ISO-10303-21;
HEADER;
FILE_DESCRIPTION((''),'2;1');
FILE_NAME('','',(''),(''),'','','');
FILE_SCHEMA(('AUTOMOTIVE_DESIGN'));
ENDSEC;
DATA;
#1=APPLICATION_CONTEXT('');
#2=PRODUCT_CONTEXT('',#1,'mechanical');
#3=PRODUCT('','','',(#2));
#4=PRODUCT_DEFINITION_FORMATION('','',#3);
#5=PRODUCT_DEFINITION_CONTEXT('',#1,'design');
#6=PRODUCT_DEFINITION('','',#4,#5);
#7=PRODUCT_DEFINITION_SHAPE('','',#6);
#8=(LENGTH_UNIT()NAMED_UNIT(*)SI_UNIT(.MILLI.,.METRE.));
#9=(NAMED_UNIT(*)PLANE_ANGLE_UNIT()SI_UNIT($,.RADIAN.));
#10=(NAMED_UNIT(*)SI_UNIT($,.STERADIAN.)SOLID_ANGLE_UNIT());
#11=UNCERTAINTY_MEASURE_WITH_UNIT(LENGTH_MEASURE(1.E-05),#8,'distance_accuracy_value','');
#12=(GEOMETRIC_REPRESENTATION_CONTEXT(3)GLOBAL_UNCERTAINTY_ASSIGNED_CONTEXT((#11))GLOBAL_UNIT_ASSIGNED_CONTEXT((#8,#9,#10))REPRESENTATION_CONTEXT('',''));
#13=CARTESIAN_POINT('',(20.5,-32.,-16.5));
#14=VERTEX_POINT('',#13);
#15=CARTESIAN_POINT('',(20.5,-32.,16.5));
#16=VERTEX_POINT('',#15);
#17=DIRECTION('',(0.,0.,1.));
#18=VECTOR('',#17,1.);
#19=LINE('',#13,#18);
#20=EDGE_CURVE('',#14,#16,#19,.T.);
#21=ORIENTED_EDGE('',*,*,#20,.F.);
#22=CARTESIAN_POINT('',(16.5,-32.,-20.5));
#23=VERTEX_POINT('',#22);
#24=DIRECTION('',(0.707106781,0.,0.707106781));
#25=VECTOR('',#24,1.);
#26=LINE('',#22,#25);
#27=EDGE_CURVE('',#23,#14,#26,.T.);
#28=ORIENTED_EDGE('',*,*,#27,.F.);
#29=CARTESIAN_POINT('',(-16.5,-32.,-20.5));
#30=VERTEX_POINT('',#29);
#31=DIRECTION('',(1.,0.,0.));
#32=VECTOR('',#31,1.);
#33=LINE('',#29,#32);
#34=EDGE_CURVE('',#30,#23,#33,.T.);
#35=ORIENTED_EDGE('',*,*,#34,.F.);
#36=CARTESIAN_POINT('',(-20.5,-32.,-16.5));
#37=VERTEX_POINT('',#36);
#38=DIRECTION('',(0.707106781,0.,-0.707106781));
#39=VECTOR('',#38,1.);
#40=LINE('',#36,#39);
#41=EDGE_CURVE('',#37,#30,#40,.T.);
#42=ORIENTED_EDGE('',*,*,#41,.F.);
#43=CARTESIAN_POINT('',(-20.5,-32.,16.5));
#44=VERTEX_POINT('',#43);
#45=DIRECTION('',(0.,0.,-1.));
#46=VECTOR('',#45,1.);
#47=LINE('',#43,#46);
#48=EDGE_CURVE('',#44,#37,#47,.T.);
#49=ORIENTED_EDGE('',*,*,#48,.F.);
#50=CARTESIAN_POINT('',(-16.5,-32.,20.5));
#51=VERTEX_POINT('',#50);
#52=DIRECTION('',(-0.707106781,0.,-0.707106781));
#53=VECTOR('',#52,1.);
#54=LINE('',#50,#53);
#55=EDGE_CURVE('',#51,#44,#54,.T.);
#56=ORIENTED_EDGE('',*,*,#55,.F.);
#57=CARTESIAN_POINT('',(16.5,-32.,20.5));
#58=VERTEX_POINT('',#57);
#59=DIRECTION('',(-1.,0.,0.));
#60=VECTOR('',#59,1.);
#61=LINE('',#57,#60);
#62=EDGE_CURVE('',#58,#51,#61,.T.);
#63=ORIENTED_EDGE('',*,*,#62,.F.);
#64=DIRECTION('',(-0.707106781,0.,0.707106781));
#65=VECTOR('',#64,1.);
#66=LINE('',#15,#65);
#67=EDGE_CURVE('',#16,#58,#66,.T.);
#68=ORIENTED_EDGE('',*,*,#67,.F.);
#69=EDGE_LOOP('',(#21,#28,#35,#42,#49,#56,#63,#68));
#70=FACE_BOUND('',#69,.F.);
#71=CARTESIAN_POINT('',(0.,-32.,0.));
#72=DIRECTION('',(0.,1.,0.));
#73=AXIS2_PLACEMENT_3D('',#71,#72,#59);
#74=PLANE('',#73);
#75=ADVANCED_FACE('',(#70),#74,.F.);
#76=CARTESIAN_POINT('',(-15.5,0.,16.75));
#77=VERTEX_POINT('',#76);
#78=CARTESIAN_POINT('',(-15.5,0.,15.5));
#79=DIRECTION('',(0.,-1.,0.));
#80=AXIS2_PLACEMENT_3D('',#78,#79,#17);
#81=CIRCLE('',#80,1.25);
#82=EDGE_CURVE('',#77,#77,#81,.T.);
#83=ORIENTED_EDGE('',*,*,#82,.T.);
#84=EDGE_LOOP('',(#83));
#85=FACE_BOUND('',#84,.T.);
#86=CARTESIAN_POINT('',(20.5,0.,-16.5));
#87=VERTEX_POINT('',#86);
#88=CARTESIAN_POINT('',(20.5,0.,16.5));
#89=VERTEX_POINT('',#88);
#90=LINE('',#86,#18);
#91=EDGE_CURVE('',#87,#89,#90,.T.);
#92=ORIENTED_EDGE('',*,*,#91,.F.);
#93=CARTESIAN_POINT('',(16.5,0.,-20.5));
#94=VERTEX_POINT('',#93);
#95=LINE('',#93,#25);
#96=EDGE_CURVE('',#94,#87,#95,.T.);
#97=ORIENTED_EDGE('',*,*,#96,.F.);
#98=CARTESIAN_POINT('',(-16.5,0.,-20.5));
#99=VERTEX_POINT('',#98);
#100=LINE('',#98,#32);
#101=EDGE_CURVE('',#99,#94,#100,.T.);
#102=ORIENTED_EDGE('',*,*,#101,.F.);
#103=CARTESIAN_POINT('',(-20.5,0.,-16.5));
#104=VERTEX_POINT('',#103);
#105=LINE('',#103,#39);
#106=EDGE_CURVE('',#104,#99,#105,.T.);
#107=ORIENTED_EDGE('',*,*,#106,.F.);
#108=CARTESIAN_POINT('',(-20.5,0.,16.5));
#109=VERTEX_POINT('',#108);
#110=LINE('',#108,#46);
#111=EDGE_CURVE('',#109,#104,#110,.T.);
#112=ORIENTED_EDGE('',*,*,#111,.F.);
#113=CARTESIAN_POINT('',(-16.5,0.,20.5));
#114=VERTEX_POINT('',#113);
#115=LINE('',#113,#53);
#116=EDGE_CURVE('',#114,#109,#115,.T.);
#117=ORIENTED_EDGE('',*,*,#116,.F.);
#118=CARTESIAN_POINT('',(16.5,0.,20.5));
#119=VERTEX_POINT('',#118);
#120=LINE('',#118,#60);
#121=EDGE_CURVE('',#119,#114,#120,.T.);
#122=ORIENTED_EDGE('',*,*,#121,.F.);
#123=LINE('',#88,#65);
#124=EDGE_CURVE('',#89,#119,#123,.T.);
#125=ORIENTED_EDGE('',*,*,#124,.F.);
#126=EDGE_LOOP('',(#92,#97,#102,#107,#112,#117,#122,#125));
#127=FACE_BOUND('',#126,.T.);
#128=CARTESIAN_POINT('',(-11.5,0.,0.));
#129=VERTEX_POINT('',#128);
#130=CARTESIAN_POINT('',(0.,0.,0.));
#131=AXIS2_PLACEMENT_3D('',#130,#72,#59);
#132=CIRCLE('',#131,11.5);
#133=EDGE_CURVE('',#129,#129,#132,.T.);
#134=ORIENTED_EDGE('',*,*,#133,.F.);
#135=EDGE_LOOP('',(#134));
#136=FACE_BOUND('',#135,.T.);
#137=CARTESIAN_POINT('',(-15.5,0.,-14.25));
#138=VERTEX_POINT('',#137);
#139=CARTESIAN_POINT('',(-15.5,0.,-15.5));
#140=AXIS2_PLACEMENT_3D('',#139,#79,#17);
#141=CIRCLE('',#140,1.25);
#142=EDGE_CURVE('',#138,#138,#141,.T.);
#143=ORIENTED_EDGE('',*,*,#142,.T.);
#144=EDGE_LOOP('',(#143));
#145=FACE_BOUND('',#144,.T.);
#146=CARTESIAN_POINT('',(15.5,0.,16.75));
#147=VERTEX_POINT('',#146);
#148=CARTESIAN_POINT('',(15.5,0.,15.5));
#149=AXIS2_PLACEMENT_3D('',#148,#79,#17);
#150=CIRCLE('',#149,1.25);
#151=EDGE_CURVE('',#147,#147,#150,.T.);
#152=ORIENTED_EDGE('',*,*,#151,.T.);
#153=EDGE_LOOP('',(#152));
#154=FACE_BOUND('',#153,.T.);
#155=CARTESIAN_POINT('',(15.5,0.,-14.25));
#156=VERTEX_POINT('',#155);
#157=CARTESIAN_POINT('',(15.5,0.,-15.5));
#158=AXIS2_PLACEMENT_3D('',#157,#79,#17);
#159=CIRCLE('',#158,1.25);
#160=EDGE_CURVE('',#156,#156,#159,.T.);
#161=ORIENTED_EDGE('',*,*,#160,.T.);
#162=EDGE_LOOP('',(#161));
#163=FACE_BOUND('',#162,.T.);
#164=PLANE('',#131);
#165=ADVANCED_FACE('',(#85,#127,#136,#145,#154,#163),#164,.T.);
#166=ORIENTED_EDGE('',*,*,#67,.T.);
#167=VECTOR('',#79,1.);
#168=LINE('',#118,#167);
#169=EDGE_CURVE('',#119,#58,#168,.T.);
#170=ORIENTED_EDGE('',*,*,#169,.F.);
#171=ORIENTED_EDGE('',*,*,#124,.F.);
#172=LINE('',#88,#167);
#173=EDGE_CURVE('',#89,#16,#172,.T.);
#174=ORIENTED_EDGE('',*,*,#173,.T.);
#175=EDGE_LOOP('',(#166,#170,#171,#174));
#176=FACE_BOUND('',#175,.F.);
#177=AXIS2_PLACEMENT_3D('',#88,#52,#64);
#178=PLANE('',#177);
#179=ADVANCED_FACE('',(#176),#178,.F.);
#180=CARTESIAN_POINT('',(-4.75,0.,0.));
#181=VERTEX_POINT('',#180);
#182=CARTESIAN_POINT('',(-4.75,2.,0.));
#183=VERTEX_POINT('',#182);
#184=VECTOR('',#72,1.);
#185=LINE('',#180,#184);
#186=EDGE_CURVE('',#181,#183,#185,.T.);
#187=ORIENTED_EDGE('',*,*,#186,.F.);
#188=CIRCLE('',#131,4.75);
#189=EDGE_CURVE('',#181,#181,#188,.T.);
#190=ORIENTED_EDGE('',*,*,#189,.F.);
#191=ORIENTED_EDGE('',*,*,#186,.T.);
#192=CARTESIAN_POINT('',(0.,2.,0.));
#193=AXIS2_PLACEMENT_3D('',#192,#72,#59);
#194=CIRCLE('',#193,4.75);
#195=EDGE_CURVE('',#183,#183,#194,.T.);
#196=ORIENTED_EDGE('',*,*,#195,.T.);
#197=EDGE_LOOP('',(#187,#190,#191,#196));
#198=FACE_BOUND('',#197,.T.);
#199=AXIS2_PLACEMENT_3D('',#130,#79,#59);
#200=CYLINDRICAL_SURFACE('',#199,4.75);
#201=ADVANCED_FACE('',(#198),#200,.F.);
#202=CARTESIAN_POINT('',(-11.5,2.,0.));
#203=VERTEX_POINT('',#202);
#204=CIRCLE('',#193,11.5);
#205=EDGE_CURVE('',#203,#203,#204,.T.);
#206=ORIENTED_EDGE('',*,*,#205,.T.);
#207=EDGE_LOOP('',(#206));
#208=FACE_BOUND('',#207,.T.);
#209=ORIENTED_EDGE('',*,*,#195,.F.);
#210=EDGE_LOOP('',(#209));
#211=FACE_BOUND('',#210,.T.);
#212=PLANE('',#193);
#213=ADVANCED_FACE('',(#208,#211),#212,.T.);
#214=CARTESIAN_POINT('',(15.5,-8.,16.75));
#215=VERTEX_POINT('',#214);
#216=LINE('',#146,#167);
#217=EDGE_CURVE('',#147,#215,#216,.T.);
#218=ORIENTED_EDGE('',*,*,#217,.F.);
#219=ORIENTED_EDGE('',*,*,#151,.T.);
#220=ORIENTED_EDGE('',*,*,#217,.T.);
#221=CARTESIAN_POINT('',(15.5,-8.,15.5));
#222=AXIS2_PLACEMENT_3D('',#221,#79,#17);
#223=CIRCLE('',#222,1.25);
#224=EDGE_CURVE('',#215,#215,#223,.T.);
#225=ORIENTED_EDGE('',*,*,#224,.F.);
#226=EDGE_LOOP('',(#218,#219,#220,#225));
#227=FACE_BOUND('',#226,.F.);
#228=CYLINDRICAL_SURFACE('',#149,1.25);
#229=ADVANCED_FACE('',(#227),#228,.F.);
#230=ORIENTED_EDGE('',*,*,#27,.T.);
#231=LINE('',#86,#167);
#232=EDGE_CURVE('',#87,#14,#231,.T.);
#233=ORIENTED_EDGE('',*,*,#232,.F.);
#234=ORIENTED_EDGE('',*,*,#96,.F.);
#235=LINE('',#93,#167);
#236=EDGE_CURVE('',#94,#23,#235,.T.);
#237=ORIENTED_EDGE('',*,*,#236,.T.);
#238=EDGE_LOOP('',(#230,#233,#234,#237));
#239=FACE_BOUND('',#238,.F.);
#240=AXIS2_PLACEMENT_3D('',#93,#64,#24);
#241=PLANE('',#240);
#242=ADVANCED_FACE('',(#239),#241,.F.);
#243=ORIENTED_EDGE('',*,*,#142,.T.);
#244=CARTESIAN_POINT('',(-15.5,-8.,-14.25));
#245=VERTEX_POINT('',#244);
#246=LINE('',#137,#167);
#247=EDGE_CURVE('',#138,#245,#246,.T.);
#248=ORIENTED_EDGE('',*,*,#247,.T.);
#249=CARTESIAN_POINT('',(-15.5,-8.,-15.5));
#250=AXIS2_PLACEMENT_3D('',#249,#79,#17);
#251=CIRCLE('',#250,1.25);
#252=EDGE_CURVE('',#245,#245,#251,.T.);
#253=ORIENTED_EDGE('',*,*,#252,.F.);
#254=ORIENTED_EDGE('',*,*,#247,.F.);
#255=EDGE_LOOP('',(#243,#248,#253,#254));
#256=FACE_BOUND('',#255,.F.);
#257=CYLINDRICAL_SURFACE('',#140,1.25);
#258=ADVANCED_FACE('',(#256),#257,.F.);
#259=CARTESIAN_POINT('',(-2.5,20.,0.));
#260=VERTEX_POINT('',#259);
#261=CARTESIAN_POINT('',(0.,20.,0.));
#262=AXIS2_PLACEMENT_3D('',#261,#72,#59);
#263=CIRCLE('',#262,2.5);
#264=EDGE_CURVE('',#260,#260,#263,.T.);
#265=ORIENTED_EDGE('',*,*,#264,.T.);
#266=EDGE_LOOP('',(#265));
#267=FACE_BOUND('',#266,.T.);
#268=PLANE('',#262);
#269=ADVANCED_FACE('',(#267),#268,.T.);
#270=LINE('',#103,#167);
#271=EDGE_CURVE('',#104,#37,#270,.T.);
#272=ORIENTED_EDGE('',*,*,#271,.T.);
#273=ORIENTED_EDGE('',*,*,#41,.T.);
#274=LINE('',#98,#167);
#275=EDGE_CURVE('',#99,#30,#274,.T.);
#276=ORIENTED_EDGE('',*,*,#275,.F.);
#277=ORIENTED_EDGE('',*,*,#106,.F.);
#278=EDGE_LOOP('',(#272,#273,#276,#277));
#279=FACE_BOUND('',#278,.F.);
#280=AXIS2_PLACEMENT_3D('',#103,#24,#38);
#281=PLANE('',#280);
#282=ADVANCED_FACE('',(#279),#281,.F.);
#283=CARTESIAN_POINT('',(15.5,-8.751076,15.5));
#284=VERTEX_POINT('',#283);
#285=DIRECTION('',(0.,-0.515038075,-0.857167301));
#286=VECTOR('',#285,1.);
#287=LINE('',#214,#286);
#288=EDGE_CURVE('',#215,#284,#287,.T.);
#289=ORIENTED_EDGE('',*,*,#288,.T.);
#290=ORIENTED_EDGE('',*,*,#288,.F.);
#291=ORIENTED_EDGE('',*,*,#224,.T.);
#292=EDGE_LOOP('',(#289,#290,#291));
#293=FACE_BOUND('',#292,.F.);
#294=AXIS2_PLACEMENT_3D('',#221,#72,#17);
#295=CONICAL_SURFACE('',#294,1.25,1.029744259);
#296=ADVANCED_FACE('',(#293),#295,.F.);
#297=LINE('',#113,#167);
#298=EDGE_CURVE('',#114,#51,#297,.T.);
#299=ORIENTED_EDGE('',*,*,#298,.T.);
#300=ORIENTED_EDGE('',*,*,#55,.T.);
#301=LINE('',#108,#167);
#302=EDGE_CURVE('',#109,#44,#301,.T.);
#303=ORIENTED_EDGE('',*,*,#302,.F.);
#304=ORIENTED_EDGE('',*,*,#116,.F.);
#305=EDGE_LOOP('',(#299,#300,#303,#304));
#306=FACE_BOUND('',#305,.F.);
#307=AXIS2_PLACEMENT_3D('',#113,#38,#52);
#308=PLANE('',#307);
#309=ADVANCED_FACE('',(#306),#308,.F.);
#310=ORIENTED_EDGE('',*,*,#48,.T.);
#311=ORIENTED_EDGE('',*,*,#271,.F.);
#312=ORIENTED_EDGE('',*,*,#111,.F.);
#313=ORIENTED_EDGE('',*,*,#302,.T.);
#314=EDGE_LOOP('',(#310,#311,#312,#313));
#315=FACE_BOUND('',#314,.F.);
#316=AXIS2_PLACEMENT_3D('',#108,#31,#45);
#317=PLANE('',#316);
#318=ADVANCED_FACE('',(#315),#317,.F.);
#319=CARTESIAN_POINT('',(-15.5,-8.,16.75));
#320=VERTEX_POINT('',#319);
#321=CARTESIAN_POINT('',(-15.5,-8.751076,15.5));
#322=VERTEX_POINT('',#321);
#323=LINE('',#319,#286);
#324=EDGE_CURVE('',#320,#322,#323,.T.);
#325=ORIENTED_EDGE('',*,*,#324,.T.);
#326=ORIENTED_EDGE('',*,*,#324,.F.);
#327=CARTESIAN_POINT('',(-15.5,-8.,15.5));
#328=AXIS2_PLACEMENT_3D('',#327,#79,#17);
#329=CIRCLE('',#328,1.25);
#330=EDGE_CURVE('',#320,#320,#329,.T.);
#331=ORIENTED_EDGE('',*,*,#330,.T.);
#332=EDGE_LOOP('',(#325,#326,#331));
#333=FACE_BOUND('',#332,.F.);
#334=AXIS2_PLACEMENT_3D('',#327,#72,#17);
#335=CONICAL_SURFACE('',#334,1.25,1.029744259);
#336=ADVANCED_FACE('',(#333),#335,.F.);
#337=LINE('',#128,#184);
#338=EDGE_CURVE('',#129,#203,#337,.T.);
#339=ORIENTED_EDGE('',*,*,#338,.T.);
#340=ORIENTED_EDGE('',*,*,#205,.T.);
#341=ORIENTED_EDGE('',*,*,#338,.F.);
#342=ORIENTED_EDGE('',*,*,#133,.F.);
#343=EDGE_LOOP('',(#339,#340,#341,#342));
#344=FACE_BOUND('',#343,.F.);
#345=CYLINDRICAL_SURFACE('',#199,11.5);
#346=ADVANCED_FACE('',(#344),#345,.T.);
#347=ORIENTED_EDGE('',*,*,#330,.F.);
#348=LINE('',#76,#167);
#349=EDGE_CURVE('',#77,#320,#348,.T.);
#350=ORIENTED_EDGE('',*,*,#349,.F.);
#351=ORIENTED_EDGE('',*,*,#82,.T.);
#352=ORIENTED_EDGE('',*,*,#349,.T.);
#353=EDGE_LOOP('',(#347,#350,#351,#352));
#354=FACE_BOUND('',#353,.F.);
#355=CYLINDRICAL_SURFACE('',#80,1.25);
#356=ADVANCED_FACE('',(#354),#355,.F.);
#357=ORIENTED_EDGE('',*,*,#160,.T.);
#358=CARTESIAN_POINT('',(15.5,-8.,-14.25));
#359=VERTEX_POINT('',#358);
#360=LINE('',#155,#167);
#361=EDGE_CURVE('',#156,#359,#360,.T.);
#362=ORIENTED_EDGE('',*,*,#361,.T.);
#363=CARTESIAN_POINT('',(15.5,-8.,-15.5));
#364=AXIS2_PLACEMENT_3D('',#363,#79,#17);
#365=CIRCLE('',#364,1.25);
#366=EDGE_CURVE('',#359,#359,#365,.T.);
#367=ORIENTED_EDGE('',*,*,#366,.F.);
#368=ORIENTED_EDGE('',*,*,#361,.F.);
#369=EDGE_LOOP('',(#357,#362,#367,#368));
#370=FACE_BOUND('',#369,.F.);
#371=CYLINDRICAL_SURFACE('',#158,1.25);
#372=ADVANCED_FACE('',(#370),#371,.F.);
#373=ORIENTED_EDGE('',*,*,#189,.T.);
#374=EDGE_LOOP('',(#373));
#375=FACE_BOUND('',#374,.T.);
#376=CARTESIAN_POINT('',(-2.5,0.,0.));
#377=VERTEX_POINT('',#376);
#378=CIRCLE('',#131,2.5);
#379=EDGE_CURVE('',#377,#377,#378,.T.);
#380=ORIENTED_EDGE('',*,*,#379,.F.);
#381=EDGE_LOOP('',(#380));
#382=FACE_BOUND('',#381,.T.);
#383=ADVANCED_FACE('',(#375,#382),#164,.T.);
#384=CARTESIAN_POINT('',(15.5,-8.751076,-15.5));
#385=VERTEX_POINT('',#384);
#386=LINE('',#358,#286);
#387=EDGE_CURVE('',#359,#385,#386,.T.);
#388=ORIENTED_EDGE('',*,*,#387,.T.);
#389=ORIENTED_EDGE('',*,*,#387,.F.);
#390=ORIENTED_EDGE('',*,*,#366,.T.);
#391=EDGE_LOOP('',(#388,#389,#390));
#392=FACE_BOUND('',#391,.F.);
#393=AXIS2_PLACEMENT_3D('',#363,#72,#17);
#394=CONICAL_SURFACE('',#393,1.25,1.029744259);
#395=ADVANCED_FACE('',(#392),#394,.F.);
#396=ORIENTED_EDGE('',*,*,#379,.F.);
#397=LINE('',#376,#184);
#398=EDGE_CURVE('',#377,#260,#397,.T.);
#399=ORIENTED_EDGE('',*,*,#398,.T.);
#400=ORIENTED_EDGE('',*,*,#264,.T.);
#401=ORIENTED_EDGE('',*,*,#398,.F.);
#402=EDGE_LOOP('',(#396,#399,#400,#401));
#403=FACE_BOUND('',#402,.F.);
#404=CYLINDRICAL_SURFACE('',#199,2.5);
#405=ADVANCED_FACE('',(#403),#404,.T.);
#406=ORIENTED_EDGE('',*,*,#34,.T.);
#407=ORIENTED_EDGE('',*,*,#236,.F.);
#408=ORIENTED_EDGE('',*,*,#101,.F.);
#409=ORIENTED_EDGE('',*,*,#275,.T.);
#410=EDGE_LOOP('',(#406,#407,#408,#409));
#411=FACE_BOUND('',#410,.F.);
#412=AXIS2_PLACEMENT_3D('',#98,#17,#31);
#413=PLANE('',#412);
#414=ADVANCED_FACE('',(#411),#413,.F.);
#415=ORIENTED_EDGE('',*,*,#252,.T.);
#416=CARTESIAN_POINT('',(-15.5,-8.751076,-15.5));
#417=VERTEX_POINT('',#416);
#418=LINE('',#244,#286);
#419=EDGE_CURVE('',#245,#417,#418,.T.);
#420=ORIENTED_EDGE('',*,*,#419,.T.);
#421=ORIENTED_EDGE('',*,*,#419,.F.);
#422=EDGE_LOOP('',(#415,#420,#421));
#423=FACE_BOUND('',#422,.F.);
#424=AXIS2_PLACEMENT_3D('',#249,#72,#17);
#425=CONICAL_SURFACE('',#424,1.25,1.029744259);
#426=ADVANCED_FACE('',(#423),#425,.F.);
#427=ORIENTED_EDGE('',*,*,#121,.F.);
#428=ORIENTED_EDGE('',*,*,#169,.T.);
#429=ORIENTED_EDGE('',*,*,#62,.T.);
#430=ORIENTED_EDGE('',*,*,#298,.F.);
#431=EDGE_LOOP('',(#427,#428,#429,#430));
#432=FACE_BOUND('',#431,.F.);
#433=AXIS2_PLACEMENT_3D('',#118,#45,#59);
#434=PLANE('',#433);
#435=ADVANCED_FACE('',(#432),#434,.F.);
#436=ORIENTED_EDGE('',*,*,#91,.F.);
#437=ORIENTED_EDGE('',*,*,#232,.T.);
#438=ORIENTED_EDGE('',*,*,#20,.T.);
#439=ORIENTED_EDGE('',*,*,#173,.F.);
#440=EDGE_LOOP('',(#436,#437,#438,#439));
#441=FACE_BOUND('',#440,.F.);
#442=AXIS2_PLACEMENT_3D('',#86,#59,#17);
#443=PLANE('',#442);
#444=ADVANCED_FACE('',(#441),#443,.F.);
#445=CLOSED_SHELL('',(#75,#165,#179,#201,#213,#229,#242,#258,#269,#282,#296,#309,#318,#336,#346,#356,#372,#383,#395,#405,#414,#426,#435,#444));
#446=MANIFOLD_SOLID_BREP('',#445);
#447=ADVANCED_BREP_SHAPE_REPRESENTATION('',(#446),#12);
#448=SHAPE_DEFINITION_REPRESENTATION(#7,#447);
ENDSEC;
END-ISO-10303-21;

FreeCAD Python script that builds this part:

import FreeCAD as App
import Part
import Sketcher
from FreeCAD import Vector

doc = App.newDocument("Part")
body = doc.addObject("PartDesign::Body", "Body")

# Sketch on XZ plane
sketch1 = body.newObject("Sketcher::SketchObject", "Sketch")
sketch1.AttachmentSupport = (doc.getObject("XZ_Plane"), [""])
sketch1.MapMode = "FlatFace"
sketch1.addGeometry(Part.LineSegment(Vector(16.5, -20.5, 0), Vector(-16.5, -20.5, 0)), False)
sketch1.addGeometry(Part.LineSegment(Vector(-16.5, -20.5, 0), Vector(-20.5, -16.5, 0)), False)
sketch1.addGeometry(Part.LineSegment(Vector(-20.5, -16.5, 0), Vector(-20.5, 16.5, 0)), False)
sketch1.addGeometry(Part.LineSegment(Vector(-20.5, 16.5, 0), Vector(-16.5, 20.5, 0)), False)
sketch1.addGeometry(Part.LineSegment(Vector(-16.5, 20.5, 0), Vector(16.5, 20.5, 0)), False)
sketch1.addGeometry(Part.LineSegment(Vector(16.5, 20.5, 0), Vector(20.5, 16.5, 0)), False)
sketch1.addGeometry(Part.LineSegment(Vector(20.5, 16.5, 0), Vector(20.5, -16.5, 0)), False)
sketch1.addGeometry(Part.LineSegment(Vector(20.5, -16.5, 0), Vector(16.5, -20.5, 0)), False)
sketch1.addConstraint(Sketcher.Constraint("Coincident", 0, 2, 1, 1))
sketch1.addConstraint(Sketcher.Constraint("Coincident", 1, 2, 2, 1))
sketch1.addConstraint(Sketcher.Constraint("Coincident", 2, 2, 3, 1))
sketch1.addConstraint(Sketcher.Constraint("Coincident", 3, 2, 4, 1))
sketch1.addConstraint(Sketcher.Constraint("Coincident", 4, 2, 5, 1))
sketch1.addConstraint(Sketcher.Constraint("Coincident", 5, 2, 6, 1))
sketch1.addConstraint(Sketcher.Constraint("Coincident", 6, 2, 7, 1))
sketch1.addConstraint(Sketcher.Constraint("Coincident", 7, 2, 0, 1))
sketch1.addConstraint(Sketcher.Constraint("Horizontal", 0))
sketch1.addConstraint(Sketcher.Constraint("Vertical", 2))
sketch1.addConstraint(Sketcher.Constraint("Horizontal", 4))
sketch1.addConstraint(Sketcher.Constraint("Vertical", 6))
sketch1.addConstraint(Sketcher.Constraint("Symmetric", 0, 2, 4, 2, -1, 1))
sketch1.addConstraint(Sketcher.Constraint("Symmetric", 1, 2, 5, 2, -1, 1))
sketch1.addConstraint(Sketcher.Constraint("Perpendicular", 1, 3))
sketch1.addConstraint(Sketcher.Constraint("Perpendicular", 5, 7))
sketch1.addConstraint(Sketcher.Constraint("Horizontal", 2, 2, 5, 2))
sketch1.addConstraint(Sketcher.Constraint("Horizontal", 1, 2, 6, 2))
sketch1.addConstraint(Sketcher.Constraint("Vertical", 0, 2, 3, 2))
sketch1.addConstraint(Sketcher.Constraint("Equal", 4, 2))
sketch1.addConstraint(Sketcher.Constraint("DistanceX", 1, 2, 0, 2, 4.0))
sketch1.addConstraint(Sketcher.Constraint("DistanceY", 0, 2, 3, 2, 41.0))
pad1 = body.newObject("PartDesign::Pad", "Pad")
pad1.Profile = sketch1
pad1.Length = 32

# Sketch on XZ plane
sketch2 = body.newObject("Sketcher::SketchObject", "Sketch001")
sketch2.AttachmentSupport = (doc.getObject("XZ_Plane"), [""])
sketch2.MapMode = "FlatFace"
sketch2.addGeometry(Part.Circle(Vector(0, 0, 0), Vector(0, 0, 1), 11.5), False)
sketch2.addGeometry(Part.Circle(Vector(0, 0, 0), Vector(0, 0, 1), 4.75), False)
sketch2.addConstraint(Sketcher.Constraint("Coincident", 0, 3, -1, 1))
sketch2.addConstraint(Sketcher.Constraint("Coincident", 1, 3, -1, 1))
sketch2.addConstraint(Sketcher.Constraint("Diameter", 0, 23.0))
sketch2.addConstraint(Sketcher.Constraint("Diameter", 1, 9.5))
pad2 = body.newObject("PartDesign::Pad", "Pad001")
pad2.Profile = sketch2
pad2.Length = 2
pad2.Reversed = True

# Sketch on XZ plane
sketch3 = body.newObject("Sketcher::SketchObject", "Sketch002")
sketch3.AttachmentSupport = (doc.getObject("XZ_Plane"), [""])
sketch3.MapMode = "FlatFace"
sketch3.addGeometry(Part.Circle(Vector(0, 0, 0), Vector(0, 0, 1), 2.5), False)
sketch3.addConstraint(Sketcher.Constraint("Coincident", 0, 3, -1, 1))
sketch3.addConstraint(Sketcher.Constraint("Diameter", 0, 5.0))
pad3 = body.newObject("PartDesign::Pad", "Pad002")
pad3.Profile = sketch3
pad3.Length = 20
pad3.Reversed = True

# Sketch on XZ plane
sketch4 = body.newObject("Sketcher::SketchObject", "Sketch003")
sketch4.AttachmentSupport = (doc.getObject("XZ_Plane"), [""])
sketch4.MapMode = "FlatFace"
sketch4.addGeometry(Part.Circle(Vector(-15.5, -15.5, 0), Vector(0, 0, 1), 1.25), False)
sketch4.addGeometry(Part.Circle(Vector(-15.5, 15.5, 0), Vector(0, 0, 1), 1.25), False)
sketch4.addGeometry(Part.Circle(Vector(15.5, -15.5, 0), Vector(0, 0, 1), 1.25), False)
sketch4.addGeometry(Part.Circle(Vector(15.5, 15.5, 0), Vector(0, 0, 1), 1.25), False)
sketch4.addConstraint(Sketcher.Constraint("Equal", 0, 1))
sketch4.addConstraint(Sketcher.Constraint("Equal", 1, 2))
sketch4.addConstraint(Sketcher.Constraint("Equal", 2, 3))
sketch4.addConstraint(Sketcher.Constraint("Symmetric", 1, 3, 2, 3, -1, 1))
sketch4.addConstraint(Sketcher.Constraint("Symmetric", 0, 3, 3, 3, -1, 1))
sketch4.addConstraint(Sketcher.Constraint("Symmetric", 0, 3, 2, 3, -2))
sketch4.addConstraint(Sketcher.Constraint("Diameter", 0, 2.5))
sketch4.addConstraint(Sketcher.Constraint("DistanceY", 0, 3, 1, 3, 31.0))
sketch4.addConstraint(Sketcher.Constraint("DistanceX", 0, 3, 2, 3, 31.0))
doc.recompute()
hole = body.newObject("PartDesign::Hole", "Hole")
hole.Profile = sketch4
hole.ThreadType = "None"
hole.Diameter = 2.5
hole.DepthType = "Dimension"
hole.Depth = 8
hole.DrillPoint = "Angled"
hole.DrillPointAngle = 118
hole.Reversed = True

doc.recompute()
